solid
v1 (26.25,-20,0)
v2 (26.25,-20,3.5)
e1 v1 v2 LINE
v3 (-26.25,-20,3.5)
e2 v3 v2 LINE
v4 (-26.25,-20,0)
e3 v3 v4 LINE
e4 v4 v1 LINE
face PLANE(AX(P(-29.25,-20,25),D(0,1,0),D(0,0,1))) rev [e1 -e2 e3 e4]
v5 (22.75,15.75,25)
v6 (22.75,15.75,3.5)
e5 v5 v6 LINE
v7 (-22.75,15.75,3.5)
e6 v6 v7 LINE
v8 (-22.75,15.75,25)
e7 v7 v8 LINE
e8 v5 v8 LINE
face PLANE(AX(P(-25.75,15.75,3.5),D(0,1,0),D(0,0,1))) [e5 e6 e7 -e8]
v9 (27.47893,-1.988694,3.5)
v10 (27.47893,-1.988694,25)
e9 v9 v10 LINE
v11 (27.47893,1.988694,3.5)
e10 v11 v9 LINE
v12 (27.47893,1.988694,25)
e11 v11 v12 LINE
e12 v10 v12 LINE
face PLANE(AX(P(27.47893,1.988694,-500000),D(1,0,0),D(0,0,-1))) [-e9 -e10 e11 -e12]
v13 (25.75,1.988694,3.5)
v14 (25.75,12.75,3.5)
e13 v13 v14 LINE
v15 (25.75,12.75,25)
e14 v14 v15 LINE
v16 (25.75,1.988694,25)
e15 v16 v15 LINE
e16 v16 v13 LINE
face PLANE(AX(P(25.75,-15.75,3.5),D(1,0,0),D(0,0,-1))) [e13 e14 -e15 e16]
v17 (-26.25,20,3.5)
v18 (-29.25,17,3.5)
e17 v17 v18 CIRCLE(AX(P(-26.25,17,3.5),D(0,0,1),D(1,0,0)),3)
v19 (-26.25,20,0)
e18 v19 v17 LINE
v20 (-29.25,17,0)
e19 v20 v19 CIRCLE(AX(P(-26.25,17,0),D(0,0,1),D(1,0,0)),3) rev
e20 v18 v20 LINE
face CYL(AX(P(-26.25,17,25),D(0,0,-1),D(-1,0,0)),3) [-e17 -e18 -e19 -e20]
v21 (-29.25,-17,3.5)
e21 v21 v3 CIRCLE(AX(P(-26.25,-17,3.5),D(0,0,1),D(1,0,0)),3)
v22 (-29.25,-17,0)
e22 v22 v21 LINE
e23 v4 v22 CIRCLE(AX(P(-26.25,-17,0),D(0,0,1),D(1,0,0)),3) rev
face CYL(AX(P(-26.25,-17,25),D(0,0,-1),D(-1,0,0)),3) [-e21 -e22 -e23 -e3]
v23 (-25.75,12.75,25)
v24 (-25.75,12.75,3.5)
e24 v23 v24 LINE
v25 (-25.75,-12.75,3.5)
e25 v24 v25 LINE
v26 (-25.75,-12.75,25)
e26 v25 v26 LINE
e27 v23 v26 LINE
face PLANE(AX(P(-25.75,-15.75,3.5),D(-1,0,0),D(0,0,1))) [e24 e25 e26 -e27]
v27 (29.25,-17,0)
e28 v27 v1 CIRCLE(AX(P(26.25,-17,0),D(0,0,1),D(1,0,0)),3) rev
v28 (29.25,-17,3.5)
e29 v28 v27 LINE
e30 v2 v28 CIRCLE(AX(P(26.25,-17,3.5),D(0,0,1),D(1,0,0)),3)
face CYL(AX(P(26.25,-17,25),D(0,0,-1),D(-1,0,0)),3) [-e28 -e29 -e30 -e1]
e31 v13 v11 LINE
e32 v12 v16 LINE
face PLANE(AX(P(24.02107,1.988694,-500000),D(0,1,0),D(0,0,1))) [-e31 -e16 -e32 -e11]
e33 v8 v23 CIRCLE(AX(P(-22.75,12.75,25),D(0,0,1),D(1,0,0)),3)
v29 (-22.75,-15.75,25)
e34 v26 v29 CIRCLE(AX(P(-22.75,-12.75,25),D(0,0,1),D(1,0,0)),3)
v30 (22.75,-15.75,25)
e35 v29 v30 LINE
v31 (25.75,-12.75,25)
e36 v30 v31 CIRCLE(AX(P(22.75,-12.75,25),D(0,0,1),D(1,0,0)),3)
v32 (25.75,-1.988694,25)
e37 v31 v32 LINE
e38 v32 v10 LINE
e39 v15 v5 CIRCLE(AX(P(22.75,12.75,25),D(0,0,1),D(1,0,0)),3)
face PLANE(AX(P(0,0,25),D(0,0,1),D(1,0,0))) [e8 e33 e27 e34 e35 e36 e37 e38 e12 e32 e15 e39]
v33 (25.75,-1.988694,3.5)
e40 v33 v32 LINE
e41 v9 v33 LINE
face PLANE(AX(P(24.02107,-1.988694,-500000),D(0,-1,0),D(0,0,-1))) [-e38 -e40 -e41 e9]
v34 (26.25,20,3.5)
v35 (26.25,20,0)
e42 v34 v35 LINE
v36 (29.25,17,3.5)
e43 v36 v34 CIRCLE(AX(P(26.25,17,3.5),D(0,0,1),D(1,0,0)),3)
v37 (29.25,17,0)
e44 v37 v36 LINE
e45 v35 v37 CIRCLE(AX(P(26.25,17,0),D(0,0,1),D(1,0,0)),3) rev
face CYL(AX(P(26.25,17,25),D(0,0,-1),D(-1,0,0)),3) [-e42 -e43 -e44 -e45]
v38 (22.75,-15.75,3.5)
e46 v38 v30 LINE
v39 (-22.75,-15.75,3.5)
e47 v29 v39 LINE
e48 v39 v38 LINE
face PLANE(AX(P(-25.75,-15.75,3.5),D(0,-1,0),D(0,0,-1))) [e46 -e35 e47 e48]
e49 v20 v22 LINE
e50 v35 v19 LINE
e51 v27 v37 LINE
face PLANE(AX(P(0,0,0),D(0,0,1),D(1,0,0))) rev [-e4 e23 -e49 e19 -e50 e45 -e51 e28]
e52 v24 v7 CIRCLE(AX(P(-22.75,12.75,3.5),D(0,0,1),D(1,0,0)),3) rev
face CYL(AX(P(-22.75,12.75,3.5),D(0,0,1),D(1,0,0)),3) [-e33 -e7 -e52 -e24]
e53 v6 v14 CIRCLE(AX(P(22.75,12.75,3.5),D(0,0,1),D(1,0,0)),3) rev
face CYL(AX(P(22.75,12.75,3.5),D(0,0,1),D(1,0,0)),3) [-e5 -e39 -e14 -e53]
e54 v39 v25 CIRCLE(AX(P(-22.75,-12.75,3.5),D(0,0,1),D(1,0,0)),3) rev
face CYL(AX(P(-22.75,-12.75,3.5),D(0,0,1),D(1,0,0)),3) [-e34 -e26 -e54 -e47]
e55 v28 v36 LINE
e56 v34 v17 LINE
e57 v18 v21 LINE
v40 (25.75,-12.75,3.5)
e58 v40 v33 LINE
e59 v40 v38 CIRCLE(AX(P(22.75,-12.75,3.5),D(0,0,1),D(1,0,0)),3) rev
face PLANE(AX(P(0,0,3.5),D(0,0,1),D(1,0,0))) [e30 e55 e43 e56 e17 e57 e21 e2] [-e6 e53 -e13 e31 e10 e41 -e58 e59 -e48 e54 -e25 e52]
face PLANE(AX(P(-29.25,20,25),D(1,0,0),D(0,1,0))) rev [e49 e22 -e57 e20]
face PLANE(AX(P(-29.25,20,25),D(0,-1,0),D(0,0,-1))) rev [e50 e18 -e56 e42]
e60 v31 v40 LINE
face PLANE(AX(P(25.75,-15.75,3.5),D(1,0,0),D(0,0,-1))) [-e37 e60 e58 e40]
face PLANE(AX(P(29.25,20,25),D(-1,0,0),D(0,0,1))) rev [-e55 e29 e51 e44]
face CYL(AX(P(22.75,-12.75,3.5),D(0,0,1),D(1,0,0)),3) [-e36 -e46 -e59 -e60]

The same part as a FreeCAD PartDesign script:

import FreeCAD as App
import Part
import Sketcher
Q = App.Units.Quantity


def edges_at(feature, points):
    """Names of the edges that pass closest to the given points."""
    edges = feature.Shape.Edges
    near = lambda p: min(range(len(edges)), key=lambda i: edges[i].distToShape(Part.Vertex(*p))[0])
    return sorted({f"Edge{near(p) + 1}" for p in points})

doc = App.newDocument("Part")
body = doc.addObject("PartDesign::Body", "Body")

# Sketch on XY plane
sketch1 = body.newObject("Sketcher::SketchObject", "Sketch")
sketch1.AttachmentSupport = (doc.getObject("XY_Plane"), [""])
sketch1.MapMode = "FlatFace"
sketch1.addGeometry(Part.LineSegment(App.Vector(-29, 20, 0), App.Vector(-29, -20, 0)), False)
sketch1.addGeometry(Part.LineSegment(App.Vector(-29, -20, 0), App.Vector(29, -20, 0)), False)
sketch1.addGeometry(Part.LineSegment(App.Vector(29, -20, 0), App.Vector(29, 20, 0)), False)
sketch1.addGeometry(Part.LineSegment(App.Vector(29, 20, 0), App.Vector(-29, 20, 0)), False)
sketch1.addConstraint(Sketcher.Constraint("Coincident", 0, 2, 1, 1))
sketch1.addConstraint(Sketcher.Constraint("Coincident", 1, 2, 2, 1))
sketch1.addConstraint(Sketcher.Constraint("Coincident", 2, 2, 3, 1))
sketch1.addConstraint(Sketcher.Constraint("Coincident", 3, 2, 0, 1))
sketch1.addConstraint(Sketcher.Constraint("Vertical", 0))
sketch1.addConstraint(Sketcher.Constraint("Horizontal", 1))
sketch1.addConstraint(Sketcher.Constraint("Vertical", 2))
sketch1.addConstraint(Sketcher.Constraint("Horizontal", 3))
sketch1.addConstraint(Sketcher.Constraint("Symmetric", 0, 2, 2, 2, -1, 1))
sketch1.addConstraint(Sketcher.Constraint("DistanceY", 0, 2, 0, 1, Q("40 mm")))
sketch1.addConstraint(Sketcher.Constraint("DistanceX", 1, 1, 1, 2, Q("58.5 mm")))
pad1 = body.newObject("PartDesign::Pad", "Pad")
pad1.Profile = sketch1
pad1.Length = 25

# Sketch on XY plane
sketch2 = body.newObject("Sketcher::SketchObject", "Sketch001")
sketch2.AttachmentSupport = (doc.getObject("XY_Plane"), [""])
sketch2.MapMode = "FlatFace"
sketch2.AttachmentOffset = App.Placement(App.Vector(0, 0, 25), App.Rotation())
sketch2.addGeometry(Part.LineSegment(App.Vector(-38, 29, 0), App.Vector(-38, -29, 0)), False)
sketch2.addGeometry(Part.LineSegment(App.Vector(-38, -29, 0), App.Vector(38, -29, 0)), False)
sketch2.addGeometry(Part.LineSegment(App.Vector(38, -29, 0), App.Vector(38, 29, 0)), False)
sketch2.addGeometry(Part.LineSegment(App.Vector(38, 29, 0), App.Vector(-38, 29, 0)), False)
sketch2.addGeometry(Part.LineSegment(App.Vector(26, -16, 0), App.Vector(-26, -16, 0)), False)
sketch2.addGeometry(Part.LineSegment(App.Vector(-26, -16, 0), App.Vector(-26, 16, 0)), False)
sketch2.addGeometry(Part.LineSegment(App.Vector(-26, 16, 0), App.Vector(26, 16, 0)), False)
sketch2.addGeometry(Part.LineSegment(App.Vector(26, 16, 0), App.Vector(26, -16, 0)), False)
sketch2.addConstraint(Sketcher.Constraint("Coincident", 0, 2, 1, 1))
sketch2.addConstraint(Sketcher.Constraint("Coincident", 1, 2, 2, 1))
sketch2.addConstraint(Sketcher.Constraint("Coincident", 2, 2, 3, 1))
sketch2.addConstraint(Sketcher.Constraint("Coincident", 3, 2, 0, 1))
sketch2.addConstraint(Sketcher.Constraint("Coincident", 4, 2, 5, 1))
sketch2.addConstraint(Sketcher.Constraint("Coincident", 5, 2, 6, 1))
sketch2.addConstraint(Sketcher.Constraint("Coincident", 6, 2, 7, 1))
sketch2.addConstraint(Sketcher.Constraint("Coincident", 7, 2, 4, 1))
sketch2.addConstraint(Sketcher.Constraint("Vertical", 0))
sketch2.addConstraint(Sketcher.Constraint("Horizontal", 1))
sketch2.addConstraint(Sketcher.Constraint("Vertical", 2))
sketch2.addConstraint(Sketcher.Constraint("Horizontal", 3))
sketch2.addConstraint(Sketcher.Constraint("Horizontal", 4))
sketch2.addConstraint(Sketcher.Constraint("Vertical", 5))
sketch2.addConstraint(Sketcher.Constraint("Horizontal", 6))
sketch2.addConstraint(Sketcher.Constraint("Vertical", 7))
sketch2.addConstraint(Sketcher.Constraint("Symmetric", 0, 2, 2, 2, -1, 1))
sketch2.addConstraint(Sketcher.Constraint("Symmetric", 4, 2, 6, 2, -1, 1))
sketch2.addConstraint(Sketcher.Constraint("DistanceX", 4, 2, 4, 1, Q("51.5 mm")))
sketch2.addConstraint(Sketcher.Constraint("DistanceY", 5, 1, 5, 2, Q("31.5 mm")))
sketch2.addConstraint(Sketcher.Constraint("DistanceX", 1, 1, 1, 2, Q("75.53 mm")))
sketch2.addConstraint(Sketcher.Constraint("DistanceY", 0, 2, 0, 1, Q("57.03 mm")))
pocket1 = body.newObject("PartDesign::Pocket", "Pocket")
pocket1.Profile = sketch2
pocket1.Length = 21.5

# Sketch on XY plane
sketch3 = body.newObject("Sketcher::SketchObject", "Sketch002")
sketch3.AttachmentSupport = (doc.getObject("XY_Plane"), [""])
sketch3.MapMode = "FlatFace"
sketch3.AttachmentOffset = App.Placement(App.Vector(0, 0, 25), App.Rotation())
sketch3.addGeometry(Part.LineSegment(App.Vector(24, 2, 0), App.Vector(24, -2, 0)), False)
sketch3.addGeometry(Part.LineSegment(App.Vector(24, -2, 0), App.Vector(27.5, -2, 0)), False)
sketch3.addGeometry(Part.LineSegment(App.Vector(27.5, -2, 0), App.Vector(27.5, 2, 0)), False)
sketch3.addGeometry(Part.LineSegment(App.Vector(27.5, 2, 0), App.Vector(24, 2, 0)), False)
sketch3.addConstraint(Sketcher.Constraint("Coincident", 0, 2, 1, 1))
sketch3.addConstraint(Sketcher.Constraint("Coincident", 1, 2, 2, 1))
sketch3.addConstraint(Sketcher.Constraint("Coincident", 2, 2, 3, 1))
sketch3.addConstraint(Sketcher.Constraint("Coincident", 3, 2, 0, 1))
sketch3.addConstraint(Sketcher.Constraint("Vertical", 0))
sketch3.addConstraint(Sketcher.Constraint("Horizontal", 1))
sketch3.addConstraint(Sketcher.Constraint("Vertical", 2))
sketch3.addConstraint(Sketcher.Constraint("Horizontal", 3))
sketch3.addConstraint(Sketcher.Constraint("DistanceX", 1, 1, 1, 2, Q("3.457861 mm")))
sketch3.addConstraint(Sketcher.Constraint("DistanceY", 0, 2, 0, 1, Q("3.977387 mm")))
sketch3.addConstraint(Sketcher.Constraint("DistanceX", -1, 1, 0, 2, Q("24.02107 mm")))
sketch3.addConstraint(Sketcher.Constraint("DistanceY", 0, 2, -1, 1, Q("1.988694 mm")))
pad2 = body.newObject("PartDesign::Pad", "Pad001")
pad2.Profile = sketch3
pad2.Type = "UpToFirst"
pad2.Reversed = True
doc.recompute()

fillet = body.newObject("PartDesign::Fillet", "Fillet")
fillet.Base = (pad2, edges_at(pad2, [(25.75, -15.75, 14.25), (25.75, 15.75, 14.25)]))
fillet.Radius = 3
doc.recompute()

fillet2 = body.newObject("PartDesign::Fillet", "Fillet001")
fillet2.Base = (fillet, edges_at(fillet, [(-25.75, -15.75, 14.25), (-25.75, 15.75, 14.25)]))
fillet2.Radius = 3
doc.recompute()

fillet3 = body.newObject("PartDesign::Fillet", "Fillet002")
fillet3.Base = (fillet2, edges_at(fillet2, [
    (29.25, -20, 1.75),
    (-29.25, -20, 1.75),
    (-29.25, 20, 1.75),
    (29.25, 20, 1.75),
]))
fillet3.Radius = 3

doc.recompute()
